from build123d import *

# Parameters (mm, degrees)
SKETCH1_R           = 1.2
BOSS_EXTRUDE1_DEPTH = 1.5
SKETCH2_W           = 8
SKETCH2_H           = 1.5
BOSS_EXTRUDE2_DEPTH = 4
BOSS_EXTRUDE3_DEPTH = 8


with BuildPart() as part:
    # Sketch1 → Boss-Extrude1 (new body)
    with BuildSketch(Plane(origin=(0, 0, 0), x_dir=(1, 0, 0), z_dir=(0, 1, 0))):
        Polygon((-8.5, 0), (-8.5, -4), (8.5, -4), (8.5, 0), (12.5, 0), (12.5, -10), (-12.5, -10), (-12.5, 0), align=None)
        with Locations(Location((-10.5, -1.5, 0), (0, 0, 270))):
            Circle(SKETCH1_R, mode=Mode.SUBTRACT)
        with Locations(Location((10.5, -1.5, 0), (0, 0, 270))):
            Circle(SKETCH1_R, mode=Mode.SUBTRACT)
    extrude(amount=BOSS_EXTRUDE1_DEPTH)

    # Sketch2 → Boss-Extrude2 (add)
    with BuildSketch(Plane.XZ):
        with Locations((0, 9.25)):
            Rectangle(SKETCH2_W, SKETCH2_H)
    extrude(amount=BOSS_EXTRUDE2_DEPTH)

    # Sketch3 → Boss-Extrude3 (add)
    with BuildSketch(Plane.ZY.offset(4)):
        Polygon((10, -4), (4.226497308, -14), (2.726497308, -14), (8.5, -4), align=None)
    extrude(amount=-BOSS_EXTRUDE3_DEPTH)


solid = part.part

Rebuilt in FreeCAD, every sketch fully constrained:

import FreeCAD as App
import Part
import Sketcher
from FreeCAD import Vector
Q = App.Units.Quantity


def add_polygon(sketch, points):
    """Adds a closed chain of lines whose ends are joined by coincident constraints."""
    first, n = sketch.GeometryCount, len(points)
    for a, b in zip(points, points[1:] + points[:1]):
        sketch.addGeometry(Part.LineSegment(App.Vector(*a, 0), App.Vector(*b, 0)), False)
    for i in range(n):
        sketch.addConstraint(Sketcher.Constraint("Coincident", first + i, 2, first + (i + 1) % n, 1))

doc = App.newDocument("Part")
body = doc.addObject("PartDesign::Body", "Body")

# Sketch on XZ plane
sketch1 = body.newObject("Sketcher::SketchObject", "Sketch")
sketch1.AttachmentSupport = (doc.getObject("XZ_Plane"), [""])
sketch1.MapMode = "FlatFace"
add_polygon(sketch1, [(-8.5, 4), (-8.5, 0), (-12.5, 0), (-12.5, 10), (12.5, 10), (12.5, 0), (8.5, 0), (8.5, 4)])  # lines 0-7
sketch1.addGeometry(Part.Circle(Vector(10.5, 1.5, 0), Vector(0, 0, 1), 1.2), False)  # 8
sketch1.addGeometry(Part.Circle(Vector(-10.5, 1.5, 0), Vector(0, 0, 1), 1.2), False)  # 9
sketch1.addConstraint(Sketcher.Constraint("Vertical", 0))
sketch1.addConstraint(Sketcher.Constraint("Horizontal", 1))
sketch1.addConstraint(Sketcher.Constraint("Vertical", 2))
sketch1.addConstraint(Sketcher.Constraint("Horizontal", 3))
sketch1.addConstraint(Sketcher.Constraint("Vertical", 4))
sketch1.addConstraint(Sketcher.Constraint("Horizontal", 5))
sketch1.addConstraint(Sketcher.Constraint("Vertical", 6))
sketch1.addConstraint(Sketcher.Constraint("Horizontal", 7))
sketch1.addConstraint(Sketcher.Constraint("Equal", 8, 9))
sketch1.addConstraint(Sketcher.Constraint("Symmetric", 1, 2, 4, 2, -1, 1))
sketch1.addConstraint(Sketcher.Constraint("Symmetric", 8, 3, 9, 3, -2))
sketch1.addConstraint(Sketcher.Constraint("Symmetric", 0, 2, 5, 2, -2))
sketch1.addConstraint(Sketcher.Constraint("Equal", 5, 0))
sketch1.addConstraint(Sketcher.Constraint("Diameter", 8, 2.4))
sketch1.addConstraint(Sketcher.Constraint("DistanceX", 1, 2, 1, 1, 4.0))
sketch1.addConstraint(Sketcher.Constraint("DistanceX", 3, 1, 3, 2, 25.0))
sketch1.addConstraint(Sketcher.Constraint("DistanceY", 2, 1, 2, 2, 10.0))
sketch1.addConstraint(Sketcher.Constraint("DistanceX", 9, 3, 8, 3, 21.0))
sketch1.addConstraint(Sketcher.Constraint("DistanceY", -1, 1, 8, 3, 1.5))
pad1 = body.newObject("PartDesign::Pad", "Pad")
pad1.Profile = sketch1
pad1.Length = 1.5
pad1.Reversed = True

# Sketch on XZ plane
sketch2 = body.newObject("Sketcher::SketchObject", "Sketch001")
sketch2.AttachmentSupport = (doc.getObject("XZ_Plane"), [""])
sketch2.MapMode = "FlatFace"
add_polygon(sketch2, [(-4, 10), (-4, 8.5), (4, 8.5), (4, 10)])  # lines 0-3
sketch2.addConstraint(Sketcher.Constraint("Vertical", 0))
sketch2.addConstraint(Sketcher.Constraint("Horizontal", 1))
sketch2.addConstraint(Sketcher.Constraint("Vertical", 2))
sketch2.addConstraint(Sketcher.Constraint("Horizontal", 3))
sketch2.addConstraint(Sketcher.Constraint("DistanceX", 1, 1, 1, 2, 8.0))
sketch2.addConstraint(Sketcher.Constraint("DistanceY", 0, 2, 0, 1, 1.5))
sketch2.addConstraint(Sketcher.Constraint("DistanceX", 0, 2, -1, 1, 4.0))
sketch2.addConstraint(Sketcher.Constraint("DistanceY", -1, 1, 2, 2, 10.0))
pad2 = body.newObject("PartDesign::Pad", "Pad001")
pad2.Profile = sketch2
pad2.Length = 4

# Sketch on YZ plane
sketch3 = body.newObject("Sketcher::SketchObject", "Sketch002")
sketch3.AttachmentSupport = (doc.getObject("YZ_Plane"), [""])
sketch3.MapMode = "FlatFace"
sketch3.AttachmentOffset = App.Placement(Vector(0, 0, -4), App.Rotation())
add_polygon(sketch3, [(-14, 4.2), (-4, 10), (-4, 8.5), (-14, 2.7)])  # lines 0-3
sketch3.addConstraint(Sketcher.Constraint("Vertical", 1))
sketch3.addConstraint(Sketcher.Constraint("Vertical", 3))
sketch3.addConstraint(Sketcher.Constraint("Parallel", 0, 2))
sketch3.addConstraint(Sketcher.Constraint("Angle", 0, Q("30 deg")))
sketch3.addConstraint(Sketcher.Constraint("DistanceY", 1, 2, 1, 1, 1.5))
sketch3.addConstraint(Sketcher.Constraint("DistanceX", 0, 2, -1, 1, 4.0))
sketch3.addConstraint(Sketcher.Constraint("DistanceY", -1, 1, 0, 2, 10.0))
sketch3.addConstraint(Sketcher.Constraint("DistanceX", 2, 2, -1, 1, 14.0))
pad3 = body.newObject("PartDesign::Pad", "Pad002")
pad3.Profile = sketch3
pad3.Length = 8

doc.recompute()
